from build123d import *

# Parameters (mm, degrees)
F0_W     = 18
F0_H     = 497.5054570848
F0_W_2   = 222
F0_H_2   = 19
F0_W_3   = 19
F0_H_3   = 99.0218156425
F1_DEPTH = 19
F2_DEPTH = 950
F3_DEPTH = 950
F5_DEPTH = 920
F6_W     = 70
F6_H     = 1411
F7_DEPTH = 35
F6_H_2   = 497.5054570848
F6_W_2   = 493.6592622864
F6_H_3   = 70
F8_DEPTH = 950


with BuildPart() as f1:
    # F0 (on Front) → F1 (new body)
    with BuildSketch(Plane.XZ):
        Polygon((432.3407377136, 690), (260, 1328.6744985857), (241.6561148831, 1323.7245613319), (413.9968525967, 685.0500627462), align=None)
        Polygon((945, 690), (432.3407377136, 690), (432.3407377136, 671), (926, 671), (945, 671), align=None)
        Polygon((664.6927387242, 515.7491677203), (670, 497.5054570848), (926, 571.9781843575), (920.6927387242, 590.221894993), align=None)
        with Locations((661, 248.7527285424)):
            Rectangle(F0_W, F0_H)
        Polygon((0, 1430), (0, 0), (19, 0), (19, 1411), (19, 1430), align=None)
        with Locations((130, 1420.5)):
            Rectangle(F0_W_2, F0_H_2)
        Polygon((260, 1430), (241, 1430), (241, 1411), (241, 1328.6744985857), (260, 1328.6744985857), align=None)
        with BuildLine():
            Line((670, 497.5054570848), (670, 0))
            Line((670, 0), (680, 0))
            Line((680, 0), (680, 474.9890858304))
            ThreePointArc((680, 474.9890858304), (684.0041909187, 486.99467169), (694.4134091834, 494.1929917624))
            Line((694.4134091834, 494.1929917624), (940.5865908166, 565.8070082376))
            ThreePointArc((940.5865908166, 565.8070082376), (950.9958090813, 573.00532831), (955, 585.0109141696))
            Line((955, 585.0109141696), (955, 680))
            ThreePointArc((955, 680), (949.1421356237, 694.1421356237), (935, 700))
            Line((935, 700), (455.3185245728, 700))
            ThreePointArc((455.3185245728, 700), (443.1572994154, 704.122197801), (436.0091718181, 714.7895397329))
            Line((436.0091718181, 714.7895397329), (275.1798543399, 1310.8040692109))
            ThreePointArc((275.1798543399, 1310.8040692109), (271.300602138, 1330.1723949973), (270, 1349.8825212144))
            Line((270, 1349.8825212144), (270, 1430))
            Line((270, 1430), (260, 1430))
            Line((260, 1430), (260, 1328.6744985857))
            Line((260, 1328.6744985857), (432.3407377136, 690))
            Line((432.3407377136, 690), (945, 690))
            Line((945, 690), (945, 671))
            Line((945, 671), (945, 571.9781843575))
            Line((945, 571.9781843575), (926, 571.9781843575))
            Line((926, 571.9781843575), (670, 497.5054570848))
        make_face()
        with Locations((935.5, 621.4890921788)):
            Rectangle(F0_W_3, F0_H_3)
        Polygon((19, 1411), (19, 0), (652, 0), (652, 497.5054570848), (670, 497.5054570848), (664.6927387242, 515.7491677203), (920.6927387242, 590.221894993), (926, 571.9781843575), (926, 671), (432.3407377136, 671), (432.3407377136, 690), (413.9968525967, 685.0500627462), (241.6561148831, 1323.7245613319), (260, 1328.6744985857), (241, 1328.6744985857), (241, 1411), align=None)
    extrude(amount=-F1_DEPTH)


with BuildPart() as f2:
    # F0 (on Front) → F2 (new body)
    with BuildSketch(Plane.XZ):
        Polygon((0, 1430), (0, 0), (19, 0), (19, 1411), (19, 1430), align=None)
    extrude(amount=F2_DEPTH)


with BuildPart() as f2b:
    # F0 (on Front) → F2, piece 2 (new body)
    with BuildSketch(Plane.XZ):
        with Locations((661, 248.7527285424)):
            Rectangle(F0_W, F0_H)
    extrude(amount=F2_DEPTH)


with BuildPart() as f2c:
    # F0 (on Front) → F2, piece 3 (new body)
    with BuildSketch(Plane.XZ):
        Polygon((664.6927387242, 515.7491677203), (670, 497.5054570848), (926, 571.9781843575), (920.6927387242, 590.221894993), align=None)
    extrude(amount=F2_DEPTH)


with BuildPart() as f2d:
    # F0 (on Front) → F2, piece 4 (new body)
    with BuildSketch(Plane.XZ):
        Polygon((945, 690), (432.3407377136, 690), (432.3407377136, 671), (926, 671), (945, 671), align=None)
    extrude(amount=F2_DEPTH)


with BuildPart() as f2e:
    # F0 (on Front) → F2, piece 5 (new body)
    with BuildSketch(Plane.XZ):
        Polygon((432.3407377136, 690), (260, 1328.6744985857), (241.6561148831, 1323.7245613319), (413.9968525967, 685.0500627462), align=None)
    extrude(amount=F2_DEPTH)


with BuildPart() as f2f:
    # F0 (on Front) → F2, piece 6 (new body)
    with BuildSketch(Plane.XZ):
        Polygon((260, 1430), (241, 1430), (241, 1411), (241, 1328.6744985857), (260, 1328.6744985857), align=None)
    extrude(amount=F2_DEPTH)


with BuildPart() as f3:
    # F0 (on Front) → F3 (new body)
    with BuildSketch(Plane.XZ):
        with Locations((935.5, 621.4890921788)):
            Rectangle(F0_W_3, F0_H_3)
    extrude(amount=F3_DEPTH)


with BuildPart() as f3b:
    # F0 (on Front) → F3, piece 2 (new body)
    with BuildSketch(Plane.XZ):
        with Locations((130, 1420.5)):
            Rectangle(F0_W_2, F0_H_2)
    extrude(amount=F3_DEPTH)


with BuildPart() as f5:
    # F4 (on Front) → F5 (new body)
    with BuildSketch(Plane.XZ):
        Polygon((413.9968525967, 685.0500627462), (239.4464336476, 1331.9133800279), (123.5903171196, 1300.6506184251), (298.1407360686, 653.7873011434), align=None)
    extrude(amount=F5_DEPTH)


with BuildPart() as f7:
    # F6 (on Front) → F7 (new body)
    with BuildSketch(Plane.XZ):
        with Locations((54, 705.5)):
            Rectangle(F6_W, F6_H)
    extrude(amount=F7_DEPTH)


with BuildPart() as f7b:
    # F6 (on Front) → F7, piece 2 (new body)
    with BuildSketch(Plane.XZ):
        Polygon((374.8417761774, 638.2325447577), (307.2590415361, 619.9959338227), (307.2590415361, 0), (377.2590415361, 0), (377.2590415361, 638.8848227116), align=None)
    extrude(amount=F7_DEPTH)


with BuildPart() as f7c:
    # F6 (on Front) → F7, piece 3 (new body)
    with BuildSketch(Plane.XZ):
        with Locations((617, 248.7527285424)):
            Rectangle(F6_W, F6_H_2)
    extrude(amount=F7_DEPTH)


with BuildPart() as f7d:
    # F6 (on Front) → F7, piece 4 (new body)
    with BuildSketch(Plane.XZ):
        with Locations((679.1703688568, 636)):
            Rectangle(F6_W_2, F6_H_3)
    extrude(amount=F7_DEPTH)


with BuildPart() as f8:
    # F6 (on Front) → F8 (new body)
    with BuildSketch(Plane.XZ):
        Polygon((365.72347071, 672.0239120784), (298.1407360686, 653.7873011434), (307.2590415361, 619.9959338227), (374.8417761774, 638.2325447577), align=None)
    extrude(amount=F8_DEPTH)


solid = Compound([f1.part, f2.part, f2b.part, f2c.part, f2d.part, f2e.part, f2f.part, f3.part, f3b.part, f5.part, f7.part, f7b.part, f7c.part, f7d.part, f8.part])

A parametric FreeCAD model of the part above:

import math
import FreeCAD as App
import Part
import Sketcher


def add_polygon(sketch, points):
    """Adds a closed chain of lines whose ends are joined by coincident constraints."""
    first, n = sketch.GeometryCount, len(points)
    for a, b in zip(points, points[1:] + points[:1]):
        sketch.addGeometry(Part.LineSegment(App.Vector(*a, 0), App.Vector(*b, 0)), False)
    for i in range(n):
        sketch.addConstraint(Sketcher.Constraint("Coincident", first + i, 2, first + (i + 1) % n, 1))

doc = App.newDocument("Part")
body = doc.addObject("PartDesign::Body", "Body")

sketch1 = body.newObject("Sketcher::SketchObject", "Sketch")
sketch1.AttachmentSupport = (doc.getObject("XZ_Plane"), [""])
sketch1.MapMode = "FlatFace"
sketch1.addGeometry(Part.LineSegment(App.Vector(680, 0, 0), App.Vector(680, 474.989086, 0)), False)
sketch1.addGeometry(Part.ArcOfCircle(Part.Circle(App.Vector(700, 474.989086, 0), App.Vector(0, 0, 1), 20), math.radians(106.220194), math.radians(180)), False)
sketch1.addGeometry(Part.LineSegment(App.Vector(694.413409, 494.192992, 0), App.Vector(940.586591, 565.807008, 0)), False)
sketch1.addGeometry(Part.ArcOfCircle(Part.Circle(App.Vector(935, 585.010914, 0), App.Vector(0, 0, 1), 20), math.radians(-73.779806), math.radians(0)), False)
sketch1.addGeometry(Part.LineSegment(App.Vector(955, 585.010914, 0), App.Vector(955, 680, 0)), False)
sketch1.addGeometry(Part.ArcOfCircle(Part.Circle(App.Vector(935, 680, 0), App.Vector(0, 0, 1), 20), math.radians(0), math.radians(90)), False)
sketch1.addGeometry(Part.LineSegment(App.Vector(935, 700, 0), App.Vector(455.318525, 700, 0)), False)
sketch1.addGeometry(Part.ArcOfCircle(Part.Circle(App.Vector(455.318525, 720, 0), App.Vector(0, 0, 1), 20), math.radians(-164.898902), math.radians(-90)), False)
sketch1.addGeometry(Part.LineSegment(App.Vector(436.009172, 714.78954, 0), App.Vector(275.179854, 1310.804069, 0)), False)
sketch1.addGeometry(Part.ArcOfCircle(Part.Circle(App.Vector(420, 1349.882521, 0), App.Vector(0, 0, 1), 150), math.radians(180), math.radians(195.101098)), False)
sketch1.addGeometry(Part.LineSegment(App.Vector(270, 1349.882521, 0), App.Vector(270, 1430, 0)), False)
sketch1.addGeometry(Part.LineSegment(App.Vector(270, 1430, 0), App.Vector(0, 1430, 0)), False)
sketch1.addGeometry(Part.LineSegment(App.Vector(0, 1430, 0), App.Vector(0, 0, 0)), False)
sketch1.addGeometry(Part.LineSegment(App.Vector(0, 0, 0), App.Vector(680, 0, 0)), False)
sketch1.addConstraint(Sketcher.Constraint("Tangent", 0, 2, 1, 2))
sketch1.addConstraint(Sketcher.Constraint("Tangent", 1, 1, 2, 1))
sketch1.addConstraint(Sketcher.Constraint("Tangent", 2, 2, 3, 1))
sketch1.addConstraint(Sketcher.Constraint("Tangent", 3, 2, 4, 1))
sketch1.addConstraint(Sketcher.Constraint("Tangent", 4, 2, 5, 1))
sketch1.addConstraint(Sketcher.Constraint("Tangent", 5, 2, 6, 1))
sketch1.addConstraint(Sketcher.Constraint("Tangent", 6, 2, 7, 2))
sketch1.addConstraint(Sketcher.Constraint("Tangent", 7, 1, 8, 1))
sketch1.addConstraint(Sketcher.Constraint("Tangent", 8, 2, 9, 2))
sketch1.addConstraint(Sketcher.Constraint("Tangent", 9, 1, 10, 1))
sketch1.addConstraint(Sketcher.Constraint("Coincident", 10, 2, 11, 1))
sketch1.addConstraint(Sketcher.Constraint("Coincident", 11, 2, 12, 1))
sketch1.addConstraint(Sketcher.Constraint("Coincident", 12, 2, 13, 1))
sketch1.addConstraint(Sketcher.Constraint("Coincident", 13, 2, 0, 1))
sketch1.addConstraint(Sketcher.Constraint("Vertical", 0))
sketch1.addConstraint(Sketcher.Constraint("Vertical", 4))
sketch1.addConstraint(Sketcher.Constraint("Horizontal", 6))
sketch1.addConstraint(Sketcher.Constraint("Vertical", 10))
sketch1.addConstraint(Sketcher.Constraint("Horizontal", 11))
sketch1.addConstraint(Sketcher.Constraint("Vertical", 12))
sketch1.addConstraint(Sketcher.Constraint("Horizontal", 13))
sketch1.addConstraint(Sketcher.Constraint("Coincident", 12, 2, -1, 1))
sketch1.addConstraint(Sketcher.Constraint("Equal", 1, 3))
sketch1.addConstraint(Sketcher.Constraint("Equal", 3, 5))
sketch1.addConstraint(Sketcher.Constraint("Equal", 5, 7))
sketch1.addConstraint(Sketcher.Constraint("Radius", 1, 20.0))
sketch1.addConstraint(Sketcher.Constraint("Radius", 9, 150.0))
sketch1.addConstraint(Sketcher.Constraint("DistanceX", 11, 2, 11, 1, 270.0))
sketch1.addConstraint(Sketcher.Constraint("DistanceX", 13, 1, 13, 2, 680.0))
sketch1.addConstraint(Sketcher.Constraint("DistanceY", 12, 2, 12, 1, 1430.0))
sketch1.addConstraint(Sketcher.Constraint("DistanceX", -1, 1, 3, 3, 935.0))
sketch1.addConstraint(Sketcher.Constraint("DistanceY", -1, 1, 5, 3, 680.0))
sketch1.addConstraint(Sketcher.Constraint("DistanceY", 10, 1, 10, 2, 80.117479))
sketch1.addConstraint(Sketcher.Constraint("Distance", 2, 256.378241))
sketch1.addConstraint(Sketcher.Constraint("Distance", 8, 617.332478))
sketch1.addConstraint(Sketcher.Constraint("DistanceY", 0, 1, 0, 2, 474.989086))
pad1 = body.newObject("PartDesign::Pad", "Pad")
pad1.Profile = sketch1
pad1.Length = 19
pad1.Reversed = True
body2 = doc.addObject("PartDesign::Body", "Body001")

sketch2 = body2.newObject("Sketcher::SketchObject", "Sketch001")
sketch2.AttachmentSupport = (doc.getObject("XZ_Plane001"), [""])
sketch2.MapMode = "FlatFace"
add_polygon(sketch2, [(0, 1430), (0, 0), (19, 0), (19, 1430)])
sketch2.addConstraint(Sketcher.Constraint("Vertical", 0))
sketch2.addConstraint(Sketcher.Constraint("Horizontal", 1))
sketch2.addConstraint(Sketcher.Constraint("Vertical", 2))
sketch2.addConstraint(Sketcher.Constraint("Horizontal", 3))
sketch2.addConstraint(Sketcher.Constraint("Coincident", 0, 2, -1, 1))
sketch2.addConstraint(Sketcher.Constraint("DistanceX", 1, 1, 1, 2, 19.0))
sketch2.addConstraint(Sketcher.Constraint("DistanceY", 0, 2, 0, 1, 1430.0))
pad2 = body2.newObject("PartDesign::Pad", "Pad001")
pad2.Profile = sketch2
pad2.Length = 950
body3 = doc.addObject("PartDesign::Body", "Body002")

sketch3 = body3.newObject("Sketcher::SketchObject", "Sketch002")
sketch3.AttachmentSupport = (doc.getObject("XZ_Plane002"), [""])
sketch3.MapMode = "FlatFace"
add_polygon(sketch3, [(652, 497.505457), (652, 0), (670, 0), (670, 497.505457)])
sketch3.addConstraint(Sketcher.Constraint("Vertical", 0))
sketch3.addConstraint(Sketcher.Constraint("Horizontal", 1))
sketch3.addConstraint(Sketcher.Constraint("Vertical", 2))
sketch3.addConstraint(Sketcher.Constraint("Horizontal", 3))
sketch3.addConstraint(Sketcher.Constraint("PointOnObject", 0, 2, -1))
sketch3.addConstraint(Sketcher.Constraint("DistanceX", 1, 1, 1, 2, 18.0))
sketch3.addConstraint(Sketcher.Constraint("DistanceX", -1, 1, 0, 2, 652.0))
sketch3.addConstraint(Sketcher.Constraint("DistanceY", 0, 2, 0, 1, 497.505457))
pad3 = body3.newObject("PartDesign::Pad", "Pad002")
pad3.Profile = sketch3
pad3.Length = 950
body4 = doc.addObject("PartDesign::Body", "Body003")

sketch4 = body4.newObject("Sketcher::SketchObject", "Sketch003")
sketch4.AttachmentSupport = (doc.getObject("XZ_Plane003"), [""])
sketch4.MapMode = "FlatFace"
add_polygon(sketch4, [(664.692739, 515.749168), (670, 497.505457), (926, 571.978184), (920.692739, 590.221895)])
sketch4.addConstraint(Sketcher.Constraint("Perpendicular", 0, 1))
sketch4.addConstraint(Sketcher.Constraint("Perpendicular", 1, 2))
sketch4.addConstraint(Sketcher.Constraint("Perpendicular", 2, 3))
sketch4.addConstraint(Sketcher.Constraint("Distance", 0, 19.0))
sketch4.addConstraint(Sketcher.Constraint("DistanceX", -1, 1, 0, 2, 670.0))
sketch4.addConstraint(Sketcher.Constraint("DistanceX", -1, 1, 1, 2, 926.0))
sketch4.addConstraint(Sketcher.Constraint("Distance", 1, 266.612429))
sketch4.addConstraint(Sketcher.Constraint("DistanceY", -1, 1, 0, 2, 497.505457))
pad4 = body4.newObject("PartDesign::Pad", "Pad003")
pad4.Profile = sketch4
pad4.Length = 950
body5 = doc.addObject("PartDesign::Body", "Body004")

sketch5 = body5.newObject("Sketcher::SketchObject", "Sketch004")
sketch5.AttachmentSupport = (doc.getObject("XZ_Plane004"), [""])
sketch5.MapMode = "FlatFace"
add_polygon(sketch5, [(945, 690), (432.340738, 690), (432.340738, 671), (945, 671)])
sketch5.addConstraint(Sketcher.Constraint("Horizontal", 0))
sketch5.addConstraint(Sketcher.Constraint("Vertical", 1))
sketch5.addConstraint(Sketcher.Constraint("Horizontal", 2))
sketch5.addConstraint(Sketcher.Constraint("Vertical", 3))
sketch5.addConstraint(Sketcher.Constraint("DistanceY", 1, 2, 1, 1, 19.0))
sketch5.addConstraint(Sketcher.Constraint("DistanceY", -1, 1, 0, 2, 690.0))
sketch5.addConstraint(Sketcher.Constraint("DistanceX", -1, 1, 2, 2, 945.0))
sketch5.addConstraint(Sketcher.Constraint("DistanceX", 0, 2, 0, 1, 512.659262))
pad5 = body5.newObject("PartDesign::Pad", "Pad004")
pad5.Profile = sketch5
pad5.Length = 950
body6 = doc.addObject("PartDesign::Body", "Body005")

sketch6 = body6.newObject("Sketcher::SketchObject", "Sketch005")
sketch6.AttachmentSupport = (doc.getObject("XZ_Plane005"), [""])
sketch6.MapMode = "FlatFace"
add_polygon(sketch6, [(432.340738, 690), (260, 1328.674499), (241.656115, 1323.724561), (413.996853, 685.050063)])
sketch6.addConstraint(Sketcher.Constraint("Perpendicular", 0, 1))
sketch6.addConstraint(Sketcher.Constraint("Perpendicular", 1, 2))
sketch6.addConstraint(Sketcher.Constraint("Perpendicular", 2, 3))
sketch6.addConstraint(Sketcher.Constraint("Distance", 1, 19.0))
sketch6.addConstraint(Sketcher.Constraint("DistanceX", -1, 1, 0, 2, 260.0))
sketch6.addConstraint(Sketcher.Constraint("DistanceY", -1, 1, 3, 2, 690.0))
sketch6.addConstraint(Sketcher.Constraint("DistanceY", -1, 1, 0, 2, 1328.674499))
sketch6.addConstraint(Sketcher.Constraint("DistanceY", -1, 1, 1, 2, 1323.724561))
pad6 = body6.newObject("PartDesign::Pad", "Pad005")
pad6.Profile = sketch6
pad6.Length = 950
body7 = doc.addObject("PartDesign::Body", "Body006")

sketch7 = body7.newObject("Sketcher::SketchObject", "Sketch006")
sketch7.AttachmentSupport = (doc.getObject("XZ_Plane006"), [""])
sketch7.MapMode = "FlatFace"
add_polygon(sketch7, [(260, 1430), (241, 1430), (241, 1328.674499), (260, 1328.674499)])
sketch7.addConstraint(Sketcher.Constraint("Horizontal", 0))
sketch7.addConstraint(Sketcher.Constraint("Vertical", 1))
sketch7.addConstraint(Sketcher.Constraint("Horizontal", 2))
sketch7.addConstraint(Sketcher.Constraint("Vertical", 3))
sketch7.addConstraint(Sketcher.Constraint("DistanceX", 0, 2, 0, 1, 19.0))
sketch7.addConstraint(Sketcher.Constraint("DistanceX", -1, 1, 0, 2, 241.0))
sketch7.addConstraint(Sketcher.Constraint("DistanceY", -1, 1, 0, 2, 1430.0))
sketch7.addConstraint(Sketcher.Constraint("DistanceY", 1, 2, 1, 1, 101.325501))
pad7 = body7.newObject("PartDesign::Pad", "Pad006")
pad7.Profile = sketch7
pad7.Length = 950
body8 = doc.addObject("PartDesign::Body", "Body007")

sketch8 = body8.newObject("Sketcher::SketchObject", "Sketch007")
sketch8.AttachmentSupport = (doc.getObject("XZ_Plane007"), [""])
sketch8.MapMode = "FlatFace"
add_polygon(sketch8, [(926, 671), (926, 571.978184), (945, 571.978184), (945, 671)])
sketch8.addConstraint(Sketcher.Constraint("Vertical", 0))
sketch8.addConstraint(Sketcher.Constraint("Horizontal", 1))
sketch8.addConstraint(Sketcher.Constraint("Vertical", 2))
sketch8.addConstraint(Sketcher.Constraint("Horizontal", 3))
sketch8.addConstraint(Sketcher.Constraint("DistanceX", 1, 1, 1, 2, 19.0))
sketch8.addConstraint(Sketcher.Constraint("DistanceX", -1, 1, 0, 2, 926.0))
sketch8.addConstraint(Sketcher.Constraint("DistanceY", -1, 1, 2, 2, 671.0))
sketch8.addConstraint(Sketcher.Constraint("DistanceY", 0, 2, 0, 1, 99.021816))
pad8 = body8.newObject("PartDesign::Pad", "Pad007")
pad8.Profile = sketch8
pad8.Length = 950
body9 = doc.addObject("PartDesign::Body", "Body008")

sketch9 = body9.newObject("Sketcher::SketchObject", "Sketch008")
sketch9.AttachmentSupport = (doc.getObject("XZ_Plane008"), [""])
sketch9.MapMode = "FlatFace"
add_polygon(sketch9, [(19, 1430), (19, 1411), (241, 1411), (241, 1430)])
sketch9.addConstraint(Sketcher.Constraint("Vertical", 0))
sketch9.addConstraint(Sketcher.Constraint("Horizontal", 1))
sketch9.addConstraint(Sketcher.Constraint("Vertical", 2))
sketch9.addConstraint(Sketcher.Constraint("Horizontal", 3))
sketch9.addConstraint(Sketcher.Constraint("DistanceX", 1, 1, 1, 2, 222.0))
sketch9.addConstraint(Sketcher.Constraint("DistanceY", 0, 2, 0, 1, 19.0))
sketch9.addConstraint(Sketcher.Constraint("DistanceX", -1, 1, 0, 2, 19.0))
sketch9.addConstraint(Sketcher.Constraint("DistanceY", -1, 1, 0, 2, 1411.0))
pad9 = body9.newObject("PartDesign::Pad", "Pad008")
pad9.Profile = sketch9
pad9.Length = 950
body10 = doc.addObject("PartDesign::Body", "Body009")

sketch10 = body10.newObject("Sketcher::SketchObject", "Sketch009")
sketch10.AttachmentSupport = (doc.getObject("XZ_Plane009"), [""])
sketch10.MapMode = "FlatFace"
add_polygon(sketch10, [(413.996853, 685.050063), (239.446434, 1331.91338), (123.590317, 1300.650618), (298.140736, 653.787301)])
sketch10.addConstraint(Sketcher.Constraint("Perpendicular", 0, 1))
sketch10.addConstraint(Sketcher.Constraint("Perpendicular", 1, 2))
sketch10.addConstraint(Sketcher.Constraint("Perpendicular", 2, 3))
sketch10.addConstraint(Sketcher.Constraint("Distance", 0, 670.0))
sketch10.addConstraint(Sketcher.Constraint("Distance", 1, 120.0))
sketch10.addConstraint(Sketcher.Constraint("DistanceY", -1, 1, 2, 2, 653.787301))
sketch10.addConstraint(Sketcher.Constraint("DistanceY", -1, 1, 0, 2, 1331.91338))
sketch10.addConstraint(Sketcher.Constraint("DistanceX", -1, 1, 0, 2, 239.446434))
pad10 = body10.newObject("PartDesign::Pad", "Pad009")
pad10.Profile = sketch10
pad10.Length = 920
body11 = doc.addObject("PartDesign::Body", "Body010")

sketch11 = body11.newObject("Sketcher::SketchObject", "Sketch010")
sketch11.AttachmentSupport = (doc.getObject("XZ_Plane010"), [""])
sketch11.MapMode = "FlatFace"
add_polygon(sketch11, [(19, 1411), (19, 0), (89, 0), (89, 1411)])
sketch11.addConstraint(Sketcher.Constraint("Vertical", 0))
sketch11.addConstraint(Sketcher.Constraint("Horizontal", 1))
sketch11.addConstraint(Sketcher.Constraint("Vertical", 2))
sketch11.addConstraint(Sketcher.Constraint("Horizontal", 3))
sketch11.addConstraint(Sketcher.Constraint("PointOnObject", 0, 2, -1))
sketch11.addConstraint(Sketcher.Constraint("DistanceX", 1, 1, 1, 2, 70.0))
sketch11.addConstraint(Sketcher.Constraint("DistanceY", 0, 2, 0, 1, 1411.0))
sketch11.addConstraint(Sketcher.Constraint("DistanceX", -1, 1, 0, 2, 19.0))
pad11 = body11.newObject("PartDesign::Pad", "Pad010")
pad11.Profile = sketch11
pad11.Length = 35
body12 = doc.addObject("PartDesign::Body", "Body011")

sketch12 = body12.newObject("Sketcher::SketchObject", "Sketch011")
sketch12.AttachmentSupport = (doc.getObject("XZ_Plane011"), [""])
sketch12.MapMode = "FlatFace"
add_polygon(sketch12, [(374.841776, 638.232545), (307.259042, 619.995934), (307.259042, 0), (377.259042, 0), (377.259042, 638.884823)])
sketch12.addConstraint(Sketcher.Constraint("Vertical", 1))
sketch12.addConstraint(Sketcher.Constraint("Horizontal", 2))
sketch12.addConstraint(Sketcher.Constraint("Vertical", 3))
sketch12.addConstraint(Sketcher.Constraint("PointOnObject", 1, 2, -1))
sketch12.addConstraint(Sketcher.Constraint("Parallel", 0, 4))
sketch12.addConstraint(Sketcher.Constraint("DistanceX", 2, 1, 2, 2, 70.0))
sketch12.addConstraint(Sketcher.Constraint("Distance", 0, 70.0))
sketch12.addConstraint(Sketcher.Constraint("DistanceY", 1, 2, 1, 1, 619.995934))
sketch12.addConstraint(Sketcher.Constraint("DistanceY", 3, 1, 3, 2, 638.884823))
sketch12.addConstraint(Sketcher.Constraint("DistanceX", -1, 1, 0, 2, 307.259042))
pad12 = body12.newObject("PartDesign::Pad", "Pad011")
pad12.Profile = sketch12
pad12.Length = 35
body13 = doc.addObject("PartDesign::Body", "Body012")

sketch13 = body13.newObject("Sketcher::SketchObject", "Sketch012")
sketch13.AttachmentSupport = (doc.getObject("XZ_Plane012"), [""])
sketch13.MapMode = "FlatFace"
add_polygon(sketch13, [(582, 497.505457), (582, 0), (652, 0), (652, 497.505457)])
sketch13.addConstraint(Sketcher.Constraint("Vertical", 0))
sketch13.addConstraint(Sketcher.Constraint("Horizontal", 1))
sketch13.addConstraint(Sketcher.Constraint("Vertical", 2))
sketch13.addConstraint(Sketcher.Constraint("Horizontal", 3))
sketch13.addConstraint(Sketcher.Constraint("PointOnObject", 0, 2, -1))
sketch13.addConstraint(Sketcher.Constraint("DistanceX", 1, 1, 1, 2, 70.0))
sketch13.addConstraint(Sketcher.Constraint("DistanceX", -1, 1, 0, 2, 582.0))
sketch13.addConstraint(Sketcher.Constraint("DistanceY", 0, 2, 0, 1, 497.505457))
pad13 = body13.newObject("PartDesign::Pad", "Pad012")
pad13.Profile = sketch13
pad13.Length = 35
body14 = doc.addObject("PartDesign::Body", "Body013")

sketch14 = body14.newObject("Sketcher::SketchObject", "Sketch013")
sketch14.AttachmentSupport = (doc.getObject("XZ_Plane013"), [""])
sketch14.MapMode = "FlatFace"
add_polygon(sketch14, [(432.340738, 671), (432.340738, 601), (926, 601), (926, 671)])
sketch14.addConstraint(Sketcher.Constraint("Vertical", 0))
sketch14.addConstraint(Sketcher.Constraint("Horizontal", 1))
sketch14.addConstraint(Sketcher.Constraint("Vertical", 2))
sketch14.addConstraint(Sketcher.Constraint("Horizontal", 3))
sketch14.addConstraint(Sketcher.Constraint("DistanceY", 0, 2, 0, 1, 70.0))
sketch14.addConstraint(Sketcher.Constraint("DistanceY", -1, 1, 0, 2, 601.0))
sketch14.addConstraint(Sketcher.Constraint("DistanceX", -1, 1, 1, 2, 926.0))
sketch14.addConstraint(Sketcher.Constraint("DistanceX", 1, 1, 1, 2, 493.659262))
pad14 = body14.newObject("PartDesign::Pad", "Pad013")
pad14.Profile = sketch14
pad14.Length = 35
body15 = doc.addObject("PartDesign::Body", "Body014")

sketch15 = body15.newObject("Sketcher::SketchObject", "Sketch014")
sketch15.AttachmentSupport = (doc.getObject("XZ_Plane014"), [""])
sketch15.MapMode = "FlatFace"
add_polygon(sketch15, [(365.723471, 672.023912), (298.140736, 653.787301), (307.259042, 619.995934), (374.841776, 638.232545)])
sketch15.addConstraint(Sketcher.Constraint("Perpendicular", 0, 1))
sketch15.addConstraint(Sketcher.Constraint("Perpendicular", 1, 2))
sketch15.addConstraint(Sketcher.Constraint("Perpendicular", 2, 3))
sketch15.addConstraint(Sketcher.Constraint("Distance", 0, 70.0))
sketch15.addConstraint(Sketcher.Constraint("Distance", 1, 35.0))
sketch15.addConstraint(Sketcher.Constraint("DistanceY", -1, 1, 0, 2, 653.787301))
sketch15.addConstraint(Sketcher.Constraint("DistanceX", -1, 1, 1, 2, 307.259042))
sketch15.addConstraint(Sketcher.Constraint("DistanceX", -1, 1, 3, 2, 365.723471))
pad15 = body15.newObject("PartDesign::Pad", "Pad014")
pad15.Profile = sketch15
pad15.Length = 950

doc.recompute()
